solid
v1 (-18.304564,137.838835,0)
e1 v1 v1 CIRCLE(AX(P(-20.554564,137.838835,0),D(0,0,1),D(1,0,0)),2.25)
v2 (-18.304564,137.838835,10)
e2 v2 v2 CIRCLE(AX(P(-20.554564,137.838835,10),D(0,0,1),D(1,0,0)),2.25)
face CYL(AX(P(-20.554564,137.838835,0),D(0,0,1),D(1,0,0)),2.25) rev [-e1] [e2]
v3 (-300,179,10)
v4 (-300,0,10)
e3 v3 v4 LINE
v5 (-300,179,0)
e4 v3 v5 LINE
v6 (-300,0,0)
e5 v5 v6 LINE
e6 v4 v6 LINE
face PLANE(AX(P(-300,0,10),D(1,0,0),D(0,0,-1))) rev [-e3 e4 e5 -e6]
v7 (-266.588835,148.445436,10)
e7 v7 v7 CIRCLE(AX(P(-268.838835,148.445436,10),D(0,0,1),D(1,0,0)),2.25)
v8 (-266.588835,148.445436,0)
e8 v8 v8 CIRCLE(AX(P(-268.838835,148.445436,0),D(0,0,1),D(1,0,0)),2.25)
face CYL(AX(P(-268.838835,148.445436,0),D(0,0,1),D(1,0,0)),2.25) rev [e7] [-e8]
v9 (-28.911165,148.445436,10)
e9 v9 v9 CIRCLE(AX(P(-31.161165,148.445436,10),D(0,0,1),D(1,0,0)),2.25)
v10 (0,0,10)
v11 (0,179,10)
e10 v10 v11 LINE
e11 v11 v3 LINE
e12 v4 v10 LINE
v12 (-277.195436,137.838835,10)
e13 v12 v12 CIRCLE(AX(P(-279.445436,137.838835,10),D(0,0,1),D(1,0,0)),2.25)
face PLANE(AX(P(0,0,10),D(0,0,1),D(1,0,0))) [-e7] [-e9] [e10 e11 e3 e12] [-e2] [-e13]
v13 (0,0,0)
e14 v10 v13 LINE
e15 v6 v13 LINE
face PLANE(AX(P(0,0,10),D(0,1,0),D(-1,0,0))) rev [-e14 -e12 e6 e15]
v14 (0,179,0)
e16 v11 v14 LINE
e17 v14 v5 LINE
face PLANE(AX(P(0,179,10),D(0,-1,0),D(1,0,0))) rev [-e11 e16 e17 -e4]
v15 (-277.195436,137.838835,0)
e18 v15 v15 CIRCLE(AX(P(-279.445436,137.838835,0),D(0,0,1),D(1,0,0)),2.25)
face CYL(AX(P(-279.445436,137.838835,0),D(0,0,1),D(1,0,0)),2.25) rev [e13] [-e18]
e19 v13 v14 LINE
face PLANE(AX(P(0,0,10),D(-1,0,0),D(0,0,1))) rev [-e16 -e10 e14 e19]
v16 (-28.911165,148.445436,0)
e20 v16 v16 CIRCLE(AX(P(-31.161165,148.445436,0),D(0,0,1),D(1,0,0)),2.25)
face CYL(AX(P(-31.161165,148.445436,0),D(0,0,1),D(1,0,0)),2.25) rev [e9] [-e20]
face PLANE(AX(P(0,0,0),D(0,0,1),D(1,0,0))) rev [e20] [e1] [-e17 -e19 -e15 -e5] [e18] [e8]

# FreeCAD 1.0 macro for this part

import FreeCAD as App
import Part
import Sketcher

V = App.Vector
Q = App.Units.Quantity


def add_polygon(sketch, points):
    """Adds a closed chain of lines whose ends are joined by coincident constraints."""
    first, n = sketch.GeometryCount, len(points)
    for a, b in zip(points, points[1:] + points[:1]):
        sketch.addGeometry(Part.LineSegment(App.Vector(*a, 0), App.Vector(*b, 0)), False)
    for i in range(n):
        sketch.addConstraint(Sketcher.Constraint("Coincident", first + i, 2, first + (i + 1) % n, 1))

doc = App.newDocument("Part")
params = doc.addObject("Spreadsheet::Sheet", "Params")
for row, (alias, value) in enumerate([
    ("sketch1_width", "300 mm"),
    ("sketch1_height", "179 mm"),
    ("pad1_length", "10 mm"),
    ("sketch2_diameter", "4.5 mm"),
    ("pocket1_length", "10 mm"),
], start=1):
    params.set(f"A{row}", alias)
    params.set(f"B{row}", "=" + value)
    params.setAlias(f"B{row}", alias)

body = doc.addObject("PartDesign::Body", "Body")

# Sketch on XY plane
sketch1 = doc.addObject("Sketcher::SketchObject", "Sketch")
body.addObject(sketch1)
sketch1.AttachmentSupport = (doc.XY_Plane, [""])
sketch1.MapMode = "FlatFace"
add_polygon(sketch1, [(-300, 179), (-300, 0), (0, 0), (0, 179)])  # lines 0-3
sketch1.addConstraint([
    Sketcher.Constraint("Vertical", 0),
    Sketcher.Constraint("Horizontal", 1),
    Sketcher.Constraint("Vertical", 2),
    Sketcher.Constraint("Horizontal", 3),
    Sketcher.Constraint("Coincident", 1, 2, -1, 1),
    Sketcher.Constraint("DistanceX", 1, 1, 1, 2, Q("300 mm")),
    Sketcher.Constraint("DistanceY", 0, 2, 0, 1, Q("179 mm")),
])
sketch1.setExpression("Constraints[9]", "Params.sketch1_width")
sketch1.setExpression("Constraints[10]", "Params.sketch1_height")
pad1 = doc.addObject("PartDesign::Pad", "Pad")
body.addObject(pad1)
pad1.Profile = sketch1
pad1.setExpression("Length", "Params.pad1_length")

# Sketch on XY plane
sketch2 = doc.addObject("Sketcher::SketchObject", "Sketch001")
body.addObject(sketch2)
sketch2.AttachmentSupport = (doc.XY_Plane, [""])
sketch2.MapMode = "FlatFace"
sketch2.AttachmentOffset = App.Placement(V(0, 0, 10), App.Rotation())
sketch2.addGeometry([
    Part.Circle(V(-31.2, 148.4, 0), V(0, 0, 1), 2.2),
    Part.Circle(V(-20.6, 137.8, 0), V(0, 0, 1), 2.2),
    Part.Circle(V(-268.8, 148.4, 0), V(0, 0, 1), 2.2),
    Part.Circle(V(-279.4, 137.8, 0), V(0, 0, 1), 2.2),
], False)
sketch2.addConstraint([
    Sketcher.Constraint("Equal", 0, 1),
    Sketcher.Constraint("Equal", 1, 2),
    Sketcher.Constraint("Equal", 2, 3),
    Sketcher.Constraint("Horizontal", 0, 3, 2, 3),
    Sketcher.Constraint("Horizontal", 1, 3, 3, 3),
    Sketcher.Constraint("Diameter", 0, Q("4.5 mm")),
    Sketcher.Constraint("DistanceX", 0, 3, 1, 3, Q("10.606602 mm")),
    Sketcher.Constraint("DistanceY", 1, 3, 0, 3, Q("10.606602 mm")),
    Sketcher.Constraint("DistanceX", 3, 3, 2, 3, Q("10.606602 mm")),
    Sketcher.Constraint("DistanceX", 2, 3, 0, 3, Q("237.67767 mm")),
    Sketcher.Constraint("DistanceX", 0, 3, -1, 1, Q("31.161165 mm")),
    Sketcher.Constraint("DistanceY", -1, 1, 0, 3, Q("148.445436 mm")),
])
sketch2.setExpression("Constraints[5]", "Params.sketch2_diameter")
pocket1 = doc.addObject("PartDesign::Pocket", "Pocket")
body.addObject(pocket1)
pocket1.Profile = sketch2
pocket1.setExpression("Length", "Params.pocket1_length")

doc.recompute()
